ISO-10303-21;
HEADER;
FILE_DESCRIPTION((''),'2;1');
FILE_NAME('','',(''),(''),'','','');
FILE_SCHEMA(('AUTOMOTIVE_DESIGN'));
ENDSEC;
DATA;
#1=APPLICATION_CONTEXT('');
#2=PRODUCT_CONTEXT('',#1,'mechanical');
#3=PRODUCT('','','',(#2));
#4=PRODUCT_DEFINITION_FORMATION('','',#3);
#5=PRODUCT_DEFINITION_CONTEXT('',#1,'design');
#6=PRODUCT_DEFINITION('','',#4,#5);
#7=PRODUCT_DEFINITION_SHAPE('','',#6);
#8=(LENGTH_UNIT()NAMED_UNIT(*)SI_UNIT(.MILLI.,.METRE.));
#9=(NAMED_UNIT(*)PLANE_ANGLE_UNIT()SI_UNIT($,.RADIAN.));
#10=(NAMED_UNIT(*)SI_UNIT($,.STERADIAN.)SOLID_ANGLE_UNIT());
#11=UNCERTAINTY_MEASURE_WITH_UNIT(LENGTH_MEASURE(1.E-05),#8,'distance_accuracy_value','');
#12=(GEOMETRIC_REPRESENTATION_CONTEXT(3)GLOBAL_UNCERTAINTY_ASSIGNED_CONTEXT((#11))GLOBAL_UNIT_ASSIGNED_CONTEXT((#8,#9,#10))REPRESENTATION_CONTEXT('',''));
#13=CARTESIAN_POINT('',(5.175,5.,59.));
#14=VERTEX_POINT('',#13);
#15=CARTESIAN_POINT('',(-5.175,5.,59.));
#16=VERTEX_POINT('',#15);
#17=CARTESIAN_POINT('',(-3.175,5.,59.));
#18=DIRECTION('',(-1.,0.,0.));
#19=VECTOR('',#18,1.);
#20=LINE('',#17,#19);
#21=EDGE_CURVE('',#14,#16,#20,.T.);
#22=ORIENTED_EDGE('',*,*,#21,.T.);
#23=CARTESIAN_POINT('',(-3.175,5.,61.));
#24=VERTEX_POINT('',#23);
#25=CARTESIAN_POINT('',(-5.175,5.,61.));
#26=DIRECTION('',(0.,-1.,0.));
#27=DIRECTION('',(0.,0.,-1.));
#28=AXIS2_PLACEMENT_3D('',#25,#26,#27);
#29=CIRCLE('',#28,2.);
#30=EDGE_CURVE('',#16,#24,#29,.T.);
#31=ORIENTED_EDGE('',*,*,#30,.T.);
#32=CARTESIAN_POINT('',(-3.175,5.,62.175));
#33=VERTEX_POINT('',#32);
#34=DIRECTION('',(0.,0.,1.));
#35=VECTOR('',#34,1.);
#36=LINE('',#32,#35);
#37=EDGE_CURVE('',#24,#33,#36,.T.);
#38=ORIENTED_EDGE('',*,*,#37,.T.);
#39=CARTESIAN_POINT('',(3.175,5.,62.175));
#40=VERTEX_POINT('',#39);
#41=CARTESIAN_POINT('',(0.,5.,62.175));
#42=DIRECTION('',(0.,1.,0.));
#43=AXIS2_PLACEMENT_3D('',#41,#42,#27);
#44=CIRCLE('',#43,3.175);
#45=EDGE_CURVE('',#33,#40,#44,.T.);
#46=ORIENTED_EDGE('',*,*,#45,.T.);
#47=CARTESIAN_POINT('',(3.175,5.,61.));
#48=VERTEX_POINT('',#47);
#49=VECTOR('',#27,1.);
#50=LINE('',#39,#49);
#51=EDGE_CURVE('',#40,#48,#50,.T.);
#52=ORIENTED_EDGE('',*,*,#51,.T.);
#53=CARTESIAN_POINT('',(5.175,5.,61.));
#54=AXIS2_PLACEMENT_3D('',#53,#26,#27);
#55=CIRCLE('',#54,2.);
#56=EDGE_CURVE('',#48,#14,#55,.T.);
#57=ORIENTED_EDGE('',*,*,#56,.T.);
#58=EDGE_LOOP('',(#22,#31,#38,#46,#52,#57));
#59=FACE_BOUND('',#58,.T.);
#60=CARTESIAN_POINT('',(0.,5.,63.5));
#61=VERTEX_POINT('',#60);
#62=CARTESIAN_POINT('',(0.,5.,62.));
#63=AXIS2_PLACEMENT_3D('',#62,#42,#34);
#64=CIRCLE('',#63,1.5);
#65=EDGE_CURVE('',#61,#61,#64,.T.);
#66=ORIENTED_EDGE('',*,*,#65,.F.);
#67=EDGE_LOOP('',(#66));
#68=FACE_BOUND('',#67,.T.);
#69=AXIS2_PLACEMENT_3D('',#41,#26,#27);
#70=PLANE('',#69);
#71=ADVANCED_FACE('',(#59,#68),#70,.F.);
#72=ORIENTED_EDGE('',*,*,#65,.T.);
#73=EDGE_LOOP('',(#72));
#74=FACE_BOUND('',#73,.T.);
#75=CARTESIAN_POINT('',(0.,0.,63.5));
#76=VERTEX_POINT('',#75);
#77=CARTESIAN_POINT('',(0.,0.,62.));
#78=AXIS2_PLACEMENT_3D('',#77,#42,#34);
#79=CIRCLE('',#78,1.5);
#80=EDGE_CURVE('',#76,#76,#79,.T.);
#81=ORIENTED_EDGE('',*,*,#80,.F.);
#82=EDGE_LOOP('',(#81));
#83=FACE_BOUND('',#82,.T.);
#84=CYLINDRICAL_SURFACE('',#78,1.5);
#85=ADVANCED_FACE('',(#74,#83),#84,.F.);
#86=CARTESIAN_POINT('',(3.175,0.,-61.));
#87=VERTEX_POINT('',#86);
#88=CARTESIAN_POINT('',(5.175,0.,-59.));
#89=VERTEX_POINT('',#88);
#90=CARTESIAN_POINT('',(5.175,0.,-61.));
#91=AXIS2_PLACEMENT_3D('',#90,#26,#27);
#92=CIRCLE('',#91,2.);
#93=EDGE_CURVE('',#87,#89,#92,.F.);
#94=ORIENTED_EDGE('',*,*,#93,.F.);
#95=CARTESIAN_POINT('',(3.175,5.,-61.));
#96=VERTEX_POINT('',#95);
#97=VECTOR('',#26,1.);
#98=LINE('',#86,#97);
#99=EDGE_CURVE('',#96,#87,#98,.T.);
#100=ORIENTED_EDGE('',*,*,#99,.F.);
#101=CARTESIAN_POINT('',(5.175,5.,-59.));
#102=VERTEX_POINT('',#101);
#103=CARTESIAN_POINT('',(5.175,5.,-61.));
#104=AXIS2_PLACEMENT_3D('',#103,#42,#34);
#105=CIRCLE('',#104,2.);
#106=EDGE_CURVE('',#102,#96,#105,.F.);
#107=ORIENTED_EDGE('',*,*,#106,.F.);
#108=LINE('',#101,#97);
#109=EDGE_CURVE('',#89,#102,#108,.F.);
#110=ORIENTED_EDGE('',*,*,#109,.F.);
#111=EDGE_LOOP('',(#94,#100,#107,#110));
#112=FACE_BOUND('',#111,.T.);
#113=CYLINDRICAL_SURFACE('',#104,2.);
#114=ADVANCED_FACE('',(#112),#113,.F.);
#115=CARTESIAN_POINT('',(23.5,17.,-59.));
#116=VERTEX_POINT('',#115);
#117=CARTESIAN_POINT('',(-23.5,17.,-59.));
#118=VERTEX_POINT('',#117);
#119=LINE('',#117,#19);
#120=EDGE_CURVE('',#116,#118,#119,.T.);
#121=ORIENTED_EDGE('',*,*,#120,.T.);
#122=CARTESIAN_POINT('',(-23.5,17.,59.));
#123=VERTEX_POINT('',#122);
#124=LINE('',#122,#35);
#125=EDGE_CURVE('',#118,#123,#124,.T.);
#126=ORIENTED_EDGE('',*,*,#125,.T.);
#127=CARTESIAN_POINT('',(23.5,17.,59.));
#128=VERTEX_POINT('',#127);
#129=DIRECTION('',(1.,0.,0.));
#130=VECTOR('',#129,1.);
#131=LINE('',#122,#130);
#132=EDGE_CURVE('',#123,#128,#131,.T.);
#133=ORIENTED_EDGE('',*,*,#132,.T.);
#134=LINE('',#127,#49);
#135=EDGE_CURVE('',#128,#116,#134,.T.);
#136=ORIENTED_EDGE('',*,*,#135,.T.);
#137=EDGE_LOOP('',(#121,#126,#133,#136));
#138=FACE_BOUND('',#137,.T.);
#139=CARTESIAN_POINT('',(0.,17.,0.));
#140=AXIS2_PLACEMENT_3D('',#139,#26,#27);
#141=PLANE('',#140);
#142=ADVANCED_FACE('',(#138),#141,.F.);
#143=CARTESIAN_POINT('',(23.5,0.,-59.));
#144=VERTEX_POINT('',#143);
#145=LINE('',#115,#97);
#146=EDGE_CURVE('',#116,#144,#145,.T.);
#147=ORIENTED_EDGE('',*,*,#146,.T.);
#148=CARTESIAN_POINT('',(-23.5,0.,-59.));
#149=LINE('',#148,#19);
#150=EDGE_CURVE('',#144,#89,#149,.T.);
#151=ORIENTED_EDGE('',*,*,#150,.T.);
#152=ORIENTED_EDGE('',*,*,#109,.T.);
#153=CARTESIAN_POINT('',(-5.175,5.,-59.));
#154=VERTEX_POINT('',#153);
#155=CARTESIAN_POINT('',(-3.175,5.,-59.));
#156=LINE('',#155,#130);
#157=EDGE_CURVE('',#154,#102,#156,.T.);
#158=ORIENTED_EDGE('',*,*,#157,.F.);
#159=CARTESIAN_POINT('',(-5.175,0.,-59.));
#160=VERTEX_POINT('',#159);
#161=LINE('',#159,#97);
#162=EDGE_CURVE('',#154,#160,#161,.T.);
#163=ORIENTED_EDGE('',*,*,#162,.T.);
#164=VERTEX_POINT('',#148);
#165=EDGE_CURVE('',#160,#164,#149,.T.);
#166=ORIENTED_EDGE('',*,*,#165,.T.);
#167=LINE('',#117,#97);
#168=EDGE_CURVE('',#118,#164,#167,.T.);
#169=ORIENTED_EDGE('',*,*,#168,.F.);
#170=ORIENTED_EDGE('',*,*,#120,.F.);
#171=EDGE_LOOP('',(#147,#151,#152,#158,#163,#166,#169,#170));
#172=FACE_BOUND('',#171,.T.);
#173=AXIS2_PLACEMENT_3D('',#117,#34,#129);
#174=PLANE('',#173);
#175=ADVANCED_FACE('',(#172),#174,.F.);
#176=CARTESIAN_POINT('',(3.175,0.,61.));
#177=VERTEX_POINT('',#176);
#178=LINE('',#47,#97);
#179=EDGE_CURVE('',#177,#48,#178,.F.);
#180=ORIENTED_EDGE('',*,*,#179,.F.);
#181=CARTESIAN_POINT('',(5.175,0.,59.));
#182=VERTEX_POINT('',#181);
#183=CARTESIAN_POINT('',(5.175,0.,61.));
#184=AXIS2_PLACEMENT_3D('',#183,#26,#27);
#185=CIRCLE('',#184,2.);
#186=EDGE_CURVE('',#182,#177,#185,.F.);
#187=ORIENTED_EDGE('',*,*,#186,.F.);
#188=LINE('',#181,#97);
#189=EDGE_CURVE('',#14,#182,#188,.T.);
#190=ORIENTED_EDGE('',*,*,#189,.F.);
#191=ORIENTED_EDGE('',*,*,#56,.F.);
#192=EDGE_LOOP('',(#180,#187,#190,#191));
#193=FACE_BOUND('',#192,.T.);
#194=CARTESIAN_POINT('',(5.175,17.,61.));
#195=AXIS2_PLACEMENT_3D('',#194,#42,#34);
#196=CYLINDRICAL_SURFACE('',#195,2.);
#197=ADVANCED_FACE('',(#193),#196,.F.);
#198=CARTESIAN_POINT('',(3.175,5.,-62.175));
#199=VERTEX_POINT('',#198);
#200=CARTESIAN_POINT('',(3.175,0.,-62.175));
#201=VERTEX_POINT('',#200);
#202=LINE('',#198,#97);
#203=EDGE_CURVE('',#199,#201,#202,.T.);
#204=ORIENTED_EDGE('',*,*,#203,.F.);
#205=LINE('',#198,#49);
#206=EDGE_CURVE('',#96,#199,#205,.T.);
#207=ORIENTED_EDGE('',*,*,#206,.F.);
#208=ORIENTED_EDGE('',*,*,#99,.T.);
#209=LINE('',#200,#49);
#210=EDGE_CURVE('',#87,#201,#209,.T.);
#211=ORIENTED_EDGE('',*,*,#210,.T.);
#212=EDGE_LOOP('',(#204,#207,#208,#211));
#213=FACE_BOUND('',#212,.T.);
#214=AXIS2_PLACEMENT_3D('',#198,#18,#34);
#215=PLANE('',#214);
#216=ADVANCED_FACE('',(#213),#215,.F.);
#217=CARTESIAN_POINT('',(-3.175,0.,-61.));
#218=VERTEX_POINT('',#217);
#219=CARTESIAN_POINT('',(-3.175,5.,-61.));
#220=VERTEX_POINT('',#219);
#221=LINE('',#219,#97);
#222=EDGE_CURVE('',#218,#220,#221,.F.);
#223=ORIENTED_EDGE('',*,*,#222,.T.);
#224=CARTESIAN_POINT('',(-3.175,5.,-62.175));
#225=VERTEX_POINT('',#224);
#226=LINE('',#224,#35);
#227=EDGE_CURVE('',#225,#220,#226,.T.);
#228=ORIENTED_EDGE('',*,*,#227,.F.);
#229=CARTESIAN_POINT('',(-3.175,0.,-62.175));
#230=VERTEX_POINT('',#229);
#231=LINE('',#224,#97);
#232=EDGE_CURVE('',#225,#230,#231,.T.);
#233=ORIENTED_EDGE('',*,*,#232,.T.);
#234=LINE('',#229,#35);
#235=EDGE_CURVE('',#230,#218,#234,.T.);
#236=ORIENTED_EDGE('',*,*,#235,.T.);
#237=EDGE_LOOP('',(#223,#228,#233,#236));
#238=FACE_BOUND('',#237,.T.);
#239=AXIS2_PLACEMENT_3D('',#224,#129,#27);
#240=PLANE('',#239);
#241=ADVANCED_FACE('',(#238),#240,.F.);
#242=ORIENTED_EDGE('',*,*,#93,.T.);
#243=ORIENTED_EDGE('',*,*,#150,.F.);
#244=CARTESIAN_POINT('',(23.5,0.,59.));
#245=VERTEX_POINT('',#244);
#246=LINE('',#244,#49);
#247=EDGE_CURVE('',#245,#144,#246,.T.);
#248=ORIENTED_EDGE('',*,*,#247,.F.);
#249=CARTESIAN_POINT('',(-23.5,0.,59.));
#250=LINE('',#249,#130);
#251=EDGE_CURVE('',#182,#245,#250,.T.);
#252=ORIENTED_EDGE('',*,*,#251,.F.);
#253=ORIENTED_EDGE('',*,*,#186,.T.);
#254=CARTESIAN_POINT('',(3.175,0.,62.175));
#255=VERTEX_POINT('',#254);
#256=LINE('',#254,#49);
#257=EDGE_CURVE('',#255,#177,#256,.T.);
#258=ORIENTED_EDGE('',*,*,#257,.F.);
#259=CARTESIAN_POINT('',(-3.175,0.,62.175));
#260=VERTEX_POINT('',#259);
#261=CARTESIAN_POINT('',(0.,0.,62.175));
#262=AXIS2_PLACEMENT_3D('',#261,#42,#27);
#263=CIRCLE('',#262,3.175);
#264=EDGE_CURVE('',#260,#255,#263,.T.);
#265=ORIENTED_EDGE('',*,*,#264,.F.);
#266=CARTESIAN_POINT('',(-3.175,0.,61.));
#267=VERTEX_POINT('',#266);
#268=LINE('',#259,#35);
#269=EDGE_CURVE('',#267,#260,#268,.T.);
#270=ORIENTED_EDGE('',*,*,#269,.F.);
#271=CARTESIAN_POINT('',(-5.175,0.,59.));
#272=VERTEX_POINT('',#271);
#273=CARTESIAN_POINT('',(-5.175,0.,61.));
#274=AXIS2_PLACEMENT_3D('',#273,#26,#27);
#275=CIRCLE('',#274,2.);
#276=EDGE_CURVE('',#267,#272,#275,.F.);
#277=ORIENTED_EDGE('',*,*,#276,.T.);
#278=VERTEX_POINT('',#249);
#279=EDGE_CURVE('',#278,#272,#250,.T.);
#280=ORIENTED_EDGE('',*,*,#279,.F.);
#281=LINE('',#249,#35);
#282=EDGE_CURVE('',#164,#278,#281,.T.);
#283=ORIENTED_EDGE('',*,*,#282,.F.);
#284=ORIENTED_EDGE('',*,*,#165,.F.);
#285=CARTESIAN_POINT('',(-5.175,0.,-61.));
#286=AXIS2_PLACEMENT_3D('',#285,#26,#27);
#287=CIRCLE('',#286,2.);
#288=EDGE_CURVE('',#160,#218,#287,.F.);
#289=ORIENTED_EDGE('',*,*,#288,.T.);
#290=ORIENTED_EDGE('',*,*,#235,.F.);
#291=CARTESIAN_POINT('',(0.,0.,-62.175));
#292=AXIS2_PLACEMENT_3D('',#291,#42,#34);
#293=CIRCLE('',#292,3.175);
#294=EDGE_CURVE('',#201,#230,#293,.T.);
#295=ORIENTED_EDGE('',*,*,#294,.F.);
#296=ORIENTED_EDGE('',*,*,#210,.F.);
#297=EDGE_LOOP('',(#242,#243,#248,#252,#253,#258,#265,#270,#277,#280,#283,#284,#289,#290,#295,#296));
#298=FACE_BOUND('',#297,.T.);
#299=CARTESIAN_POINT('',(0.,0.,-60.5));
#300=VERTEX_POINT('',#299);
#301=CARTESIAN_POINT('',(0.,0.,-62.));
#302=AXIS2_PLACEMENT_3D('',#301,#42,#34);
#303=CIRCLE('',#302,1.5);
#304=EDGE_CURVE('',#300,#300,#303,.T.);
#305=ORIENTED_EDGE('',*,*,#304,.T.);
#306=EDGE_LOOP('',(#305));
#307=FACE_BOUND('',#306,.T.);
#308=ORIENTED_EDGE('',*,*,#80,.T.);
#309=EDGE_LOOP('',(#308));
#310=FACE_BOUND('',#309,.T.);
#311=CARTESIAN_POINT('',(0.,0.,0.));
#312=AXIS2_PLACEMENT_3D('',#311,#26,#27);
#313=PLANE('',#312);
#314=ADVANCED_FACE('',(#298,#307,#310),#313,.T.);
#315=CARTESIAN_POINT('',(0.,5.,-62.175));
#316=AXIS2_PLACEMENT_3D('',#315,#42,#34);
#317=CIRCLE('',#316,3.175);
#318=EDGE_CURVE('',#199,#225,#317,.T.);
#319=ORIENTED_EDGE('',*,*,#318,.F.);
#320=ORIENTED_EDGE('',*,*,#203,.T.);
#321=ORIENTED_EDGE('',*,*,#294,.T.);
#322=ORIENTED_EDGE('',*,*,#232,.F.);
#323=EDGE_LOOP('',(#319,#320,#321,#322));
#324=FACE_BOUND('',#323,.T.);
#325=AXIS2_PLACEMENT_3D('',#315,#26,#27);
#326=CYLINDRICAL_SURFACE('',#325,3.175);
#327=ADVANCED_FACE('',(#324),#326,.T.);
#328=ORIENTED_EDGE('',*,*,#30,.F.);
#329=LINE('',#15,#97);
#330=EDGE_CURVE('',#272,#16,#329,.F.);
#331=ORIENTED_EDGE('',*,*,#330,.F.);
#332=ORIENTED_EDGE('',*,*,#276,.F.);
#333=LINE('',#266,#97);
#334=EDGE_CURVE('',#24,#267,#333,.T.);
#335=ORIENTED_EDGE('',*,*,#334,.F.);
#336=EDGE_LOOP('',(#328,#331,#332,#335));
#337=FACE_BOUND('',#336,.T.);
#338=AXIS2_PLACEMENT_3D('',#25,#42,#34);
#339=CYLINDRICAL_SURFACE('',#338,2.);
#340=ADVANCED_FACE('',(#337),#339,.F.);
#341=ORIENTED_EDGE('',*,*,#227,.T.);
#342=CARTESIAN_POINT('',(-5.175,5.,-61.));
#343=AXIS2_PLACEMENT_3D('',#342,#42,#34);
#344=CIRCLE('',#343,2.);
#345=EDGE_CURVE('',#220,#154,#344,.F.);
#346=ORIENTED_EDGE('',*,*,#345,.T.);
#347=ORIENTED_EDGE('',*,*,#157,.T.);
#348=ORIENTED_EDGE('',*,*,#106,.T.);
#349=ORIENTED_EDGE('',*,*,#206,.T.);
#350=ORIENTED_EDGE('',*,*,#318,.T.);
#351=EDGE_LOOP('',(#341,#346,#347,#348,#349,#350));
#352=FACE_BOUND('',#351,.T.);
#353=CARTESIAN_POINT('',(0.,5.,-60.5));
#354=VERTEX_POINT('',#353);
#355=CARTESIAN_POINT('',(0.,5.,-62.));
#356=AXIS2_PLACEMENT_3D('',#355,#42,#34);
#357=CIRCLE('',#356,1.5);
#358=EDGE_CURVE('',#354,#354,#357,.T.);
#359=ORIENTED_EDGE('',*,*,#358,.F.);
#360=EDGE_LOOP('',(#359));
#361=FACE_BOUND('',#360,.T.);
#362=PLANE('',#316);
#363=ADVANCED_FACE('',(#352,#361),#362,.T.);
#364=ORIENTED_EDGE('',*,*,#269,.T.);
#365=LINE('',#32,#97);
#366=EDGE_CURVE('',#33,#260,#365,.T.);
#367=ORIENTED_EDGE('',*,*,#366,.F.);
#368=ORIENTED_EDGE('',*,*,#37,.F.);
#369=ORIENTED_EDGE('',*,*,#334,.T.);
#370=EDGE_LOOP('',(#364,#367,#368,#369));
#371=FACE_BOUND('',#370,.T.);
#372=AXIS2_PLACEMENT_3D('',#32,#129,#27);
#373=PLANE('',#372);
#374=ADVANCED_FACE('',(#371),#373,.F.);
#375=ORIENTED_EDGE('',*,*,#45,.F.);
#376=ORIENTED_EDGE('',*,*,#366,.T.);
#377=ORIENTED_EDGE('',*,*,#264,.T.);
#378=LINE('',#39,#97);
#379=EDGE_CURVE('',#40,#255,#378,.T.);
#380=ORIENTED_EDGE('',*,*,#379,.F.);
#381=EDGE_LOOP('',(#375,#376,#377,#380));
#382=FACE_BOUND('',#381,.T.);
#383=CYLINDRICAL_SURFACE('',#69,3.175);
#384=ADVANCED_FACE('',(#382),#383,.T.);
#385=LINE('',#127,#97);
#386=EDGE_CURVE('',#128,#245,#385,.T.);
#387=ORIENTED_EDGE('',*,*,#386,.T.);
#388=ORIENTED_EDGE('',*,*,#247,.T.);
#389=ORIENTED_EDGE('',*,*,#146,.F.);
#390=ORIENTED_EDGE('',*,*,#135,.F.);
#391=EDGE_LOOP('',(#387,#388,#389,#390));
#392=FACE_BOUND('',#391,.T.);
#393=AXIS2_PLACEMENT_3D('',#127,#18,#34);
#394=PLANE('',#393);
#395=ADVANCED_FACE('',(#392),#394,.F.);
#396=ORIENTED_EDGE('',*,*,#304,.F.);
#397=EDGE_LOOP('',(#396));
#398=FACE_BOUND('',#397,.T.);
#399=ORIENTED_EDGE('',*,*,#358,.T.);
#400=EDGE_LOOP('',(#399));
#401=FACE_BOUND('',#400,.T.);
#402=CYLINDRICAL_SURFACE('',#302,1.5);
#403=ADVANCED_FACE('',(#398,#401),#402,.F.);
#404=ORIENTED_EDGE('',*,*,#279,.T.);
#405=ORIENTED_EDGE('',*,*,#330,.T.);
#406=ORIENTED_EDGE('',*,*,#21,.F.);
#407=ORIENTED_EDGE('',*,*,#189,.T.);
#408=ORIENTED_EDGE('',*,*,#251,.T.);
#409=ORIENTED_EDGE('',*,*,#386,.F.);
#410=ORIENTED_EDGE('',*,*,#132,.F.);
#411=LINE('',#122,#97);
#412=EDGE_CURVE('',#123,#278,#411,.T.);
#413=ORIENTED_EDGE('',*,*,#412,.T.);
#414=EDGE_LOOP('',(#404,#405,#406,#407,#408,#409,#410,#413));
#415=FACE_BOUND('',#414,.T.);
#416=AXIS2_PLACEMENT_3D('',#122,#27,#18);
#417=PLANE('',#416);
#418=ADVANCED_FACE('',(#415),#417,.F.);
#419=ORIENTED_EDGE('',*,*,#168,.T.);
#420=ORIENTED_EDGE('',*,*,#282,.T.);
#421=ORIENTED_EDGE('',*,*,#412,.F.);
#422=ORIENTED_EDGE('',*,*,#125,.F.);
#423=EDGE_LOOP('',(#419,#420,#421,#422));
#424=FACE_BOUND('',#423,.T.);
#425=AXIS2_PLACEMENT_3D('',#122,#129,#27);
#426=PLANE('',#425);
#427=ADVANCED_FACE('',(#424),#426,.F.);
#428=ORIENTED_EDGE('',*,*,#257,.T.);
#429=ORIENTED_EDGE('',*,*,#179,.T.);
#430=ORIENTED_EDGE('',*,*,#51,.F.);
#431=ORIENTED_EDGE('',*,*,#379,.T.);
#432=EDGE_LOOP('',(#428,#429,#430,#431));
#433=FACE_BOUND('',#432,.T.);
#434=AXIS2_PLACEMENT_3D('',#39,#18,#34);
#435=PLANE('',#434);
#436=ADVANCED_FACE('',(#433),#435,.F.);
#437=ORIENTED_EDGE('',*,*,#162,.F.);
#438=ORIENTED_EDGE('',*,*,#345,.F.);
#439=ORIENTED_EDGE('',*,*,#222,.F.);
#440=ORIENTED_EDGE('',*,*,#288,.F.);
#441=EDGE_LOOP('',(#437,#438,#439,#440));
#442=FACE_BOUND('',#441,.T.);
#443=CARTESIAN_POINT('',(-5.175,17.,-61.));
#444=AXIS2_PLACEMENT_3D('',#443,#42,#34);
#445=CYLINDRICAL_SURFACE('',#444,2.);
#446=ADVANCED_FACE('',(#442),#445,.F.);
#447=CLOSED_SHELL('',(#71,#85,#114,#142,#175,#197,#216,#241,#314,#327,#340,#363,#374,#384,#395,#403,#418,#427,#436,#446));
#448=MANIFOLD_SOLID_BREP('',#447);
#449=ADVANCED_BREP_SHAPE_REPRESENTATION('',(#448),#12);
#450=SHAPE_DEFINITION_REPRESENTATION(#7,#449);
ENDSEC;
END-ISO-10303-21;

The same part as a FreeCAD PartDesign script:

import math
import FreeCAD as App
import Part
import Sketcher

V = App.Vector
Q = App.Units.Quantity


def edges_at(feature, points):
    """Names of the edges that pass closest to the given points."""
    edges = feature.Shape.Edges
    near = lambda p: min(range(len(edges)), key=lambda i: edges[i].distToShape(Part.Vertex(*p))[0])
    return sorted({f"Edge{near(p) + 1}" for p in points})


def add_polygon(sketch, points):
    """Adds a closed chain of lines whose ends are joined by coincident constraints."""
    first, n = sketch.GeometryCount, len(points)
    for a, b in zip(points, points[1:] + points[:1]):
        sketch.addGeometry(Part.LineSegment(App.Vector(*a, 0), App.Vector(*b, 0)), False)
    for i in range(n):
        sketch.addConstraint(Sketcher.Constraint("Coincident", first + i, 2, first + (i + 1) % n, 1))

doc = App.newDocument("Part")
body = doc.addObject("PartDesign::Body", "Body")

sketch1 = doc.addObject("Sketcher::SketchObject", "Sketch")
body.addObject(sketch1)
sketch1.AttachmentSupport = (doc.XZ_Plane, [""])
sketch1.MapMode = "FlatFace"
add_polygon(sketch1, [(-23.5, -59), (-23.5, 59), (23.5, 59), (23.5, -59)])
sketch1.addConstraint(Sketcher.Constraint("Vertical", 0))
sketch1.addConstraint(Sketcher.Constraint("Horizontal", 1))
sketch1.addConstraint(Sketcher.Constraint("Vertical", 2))
sketch1.addConstraint(Sketcher.Constraint("Horizontal", 3))
sketch1.addConstraint(Sketcher.Constraint("Symmetric", 0, 2, 2, 2, -1, 1))
sketch1.addConstraint(Sketcher.Constraint("DistanceX", 1, 1, 1, 2, Q("47 mm")))
sketch1.addConstraint(Sketcher.Constraint("DistanceY", 0, 1, 0, 2, Q("118 mm")))
pad1 = doc.addObject("PartDesign::Pad", "Pad")
body.addObject(pad1)
pad1.Profile = sketch1
pad1.Length = 17
pad1.Reversed = True

sketch2 = doc.addObject("Sketcher::SketchObject", "Sketch001")
body.addObject(sketch2)
sketch2.AttachmentSupport = (doc.XZ_Plane, [""])
sketch2.MapMode = "FlatFace"
sketch2.addGeometry(Part.LineSegment(V(-3.175, -62.175, 0), V(-3.175, -59, 0)), False)
sketch2.addGeometry(Part.LineSegment(V(-3.175, -59, 0), V(3.175, -59, 0)), False)
sketch2.addGeometry(Part.LineSegment(V(3.175, -59, 0), V(3.175, -62.175, 0)), False)
sketch2.addGeometry(Part.ArcOfCircle(Part.Circle(V(0, -62.175, 0), V(0, 0, 1), 3.175), math.radians(180), math.radians(360)), False)
sketch2.addGeometry(Part.LineSegment(V(3.175, 62.175, 0), V(3.175, 59, 0)), False)
sketch2.addGeometry(Part.LineSegment(V(3.175, 59, 0), V(-3.175, 59, 0)), False)
sketch2.addGeometry(Part.LineSegment(V(-3.175, 59, 0), V(-3.175, 62.175, 0)), False)
sketch2.addGeometry(Part.ArcOfCircle(Part.Circle(V(0, 62.175, 0), V(0, 0, 1), 3.175), math.radians(0), math.radians(180)), False)
sketch2.addConstraint(Sketcher.Constraint("Coincident", 0, 2, 1, 1))
sketch2.addConstraint(Sketcher.Constraint("Coincident", 1, 2, 2, 1))
sketch2.addConstraint(Sketcher.Constraint("Tangent", 2, 2, 3, 2))
sketch2.addConstraint(Sketcher.Constraint("Tangent", 3, 1, 0, 1))
sketch2.addConstraint(Sketcher.Constraint("Coincident", 4, 2, 5, 1))
sketch2.addConstraint(Sketcher.Constraint("Coincident", 5, 2, 6, 1))
sketch2.addConstraint(Sketcher.Constraint("Tangent", 6, 2, 7, 2))
sketch2.addConstraint(Sketcher.Constraint("Tangent", 7, 1, 4, 1))
sketch2.addConstraint(Sketcher.Constraint("Vertical", 0))
sketch2.addConstraint(Sketcher.Constraint("Horizontal", 1))
sketch2.addConstraint(Sketcher.Constraint("Vertical", 2))
sketch2.addConstraint(Sketcher.Constraint("Vertical", 4))
sketch2.addConstraint(Sketcher.Constraint("Horizontal", 5))
sketch2.addConstraint(Sketcher.Constraint("Vertical", 6))
sketch2.addConstraint(Sketcher.Constraint("Equal", 3, 7))
sketch2.addConstraint(Sketcher.Constraint("Symmetric", 3, 3, 7, 3, -1, 1))
sketch2.addConstraint(Sketcher.Constraint("Symmetric", 1, 2, 4, 2, -1))
sketch2.addConstraint(Sketcher.Constraint("DistanceY", 0, 2, -1, 1, Q("59 mm")))
sketch2.addConstraint(Sketcher.Constraint("Radius", 3, Q("3.175 mm")))
sketch2.addConstraint(Sketcher.Constraint("DistanceY", 0, 1, 0, 2, Q("3.175 mm")))
pad2 = doc.addObject("PartDesign::Pad", "Pad001")
body.addObject(pad2)
pad2.Profile = sketch2
pad2.Length = 5
pad2.Reversed = True

sketch3 = doc.addObject("Sketcher::SketchObject", "Sketch002")
body.addObject(sketch3)
sketch3.AttachmentSupport = (doc.XZ_Plane, [""])
sketch3.MapMode = "FlatFace"
sketch3.AttachmentOffset = App.Placement(V(0, 0, -5), App.Rotation())
sketch3.addGeometry(Part.Circle(V(0, 62, 0), V(0, 0, 1), 1.5), False)
sketch3.addGeometry(Part.Circle(V(0, -62, 0), V(0, 0, 1), 1.5), False)
sketch3.addConstraint(Sketcher.Constraint("Equal", 0, 1))
sketch3.addConstraint(Sketcher.Constraint("Symmetric", 0, 3, 1, 3, -1, 1))
sketch3.addConstraint(Sketcher.Constraint("PointOnObject", 0, 3, -2))
sketch3.addConstraint(Sketcher.Constraint("Diameter", 0, Q("3 mm")))
sketch3.addConstraint(Sketcher.Constraint("DistanceY", -1, 1, 0, 3, Q("62 mm")))
pocket1 = doc.addObject("PartDesign::Pocket", "Pocket")
body.addObject(pocket1)
pocket1.Profile = sketch3
pocket1.Type = "ThroughAll"
pocket1.Reversed = True
doc.recompute()

fillet = doc.addObject("PartDesign::Fillet", "Fillet")
body.addObject(fillet)
fillet.Base = (pocket1, edges_at(pocket1, [
    (-3.175, 2.5, -59),
    (3.175, 2.5, -59),
    (3.175, 2.5, 59),
    (-3.175, 2.5, 59),
]))
fillet.Radius = 2

doc.recompute()
